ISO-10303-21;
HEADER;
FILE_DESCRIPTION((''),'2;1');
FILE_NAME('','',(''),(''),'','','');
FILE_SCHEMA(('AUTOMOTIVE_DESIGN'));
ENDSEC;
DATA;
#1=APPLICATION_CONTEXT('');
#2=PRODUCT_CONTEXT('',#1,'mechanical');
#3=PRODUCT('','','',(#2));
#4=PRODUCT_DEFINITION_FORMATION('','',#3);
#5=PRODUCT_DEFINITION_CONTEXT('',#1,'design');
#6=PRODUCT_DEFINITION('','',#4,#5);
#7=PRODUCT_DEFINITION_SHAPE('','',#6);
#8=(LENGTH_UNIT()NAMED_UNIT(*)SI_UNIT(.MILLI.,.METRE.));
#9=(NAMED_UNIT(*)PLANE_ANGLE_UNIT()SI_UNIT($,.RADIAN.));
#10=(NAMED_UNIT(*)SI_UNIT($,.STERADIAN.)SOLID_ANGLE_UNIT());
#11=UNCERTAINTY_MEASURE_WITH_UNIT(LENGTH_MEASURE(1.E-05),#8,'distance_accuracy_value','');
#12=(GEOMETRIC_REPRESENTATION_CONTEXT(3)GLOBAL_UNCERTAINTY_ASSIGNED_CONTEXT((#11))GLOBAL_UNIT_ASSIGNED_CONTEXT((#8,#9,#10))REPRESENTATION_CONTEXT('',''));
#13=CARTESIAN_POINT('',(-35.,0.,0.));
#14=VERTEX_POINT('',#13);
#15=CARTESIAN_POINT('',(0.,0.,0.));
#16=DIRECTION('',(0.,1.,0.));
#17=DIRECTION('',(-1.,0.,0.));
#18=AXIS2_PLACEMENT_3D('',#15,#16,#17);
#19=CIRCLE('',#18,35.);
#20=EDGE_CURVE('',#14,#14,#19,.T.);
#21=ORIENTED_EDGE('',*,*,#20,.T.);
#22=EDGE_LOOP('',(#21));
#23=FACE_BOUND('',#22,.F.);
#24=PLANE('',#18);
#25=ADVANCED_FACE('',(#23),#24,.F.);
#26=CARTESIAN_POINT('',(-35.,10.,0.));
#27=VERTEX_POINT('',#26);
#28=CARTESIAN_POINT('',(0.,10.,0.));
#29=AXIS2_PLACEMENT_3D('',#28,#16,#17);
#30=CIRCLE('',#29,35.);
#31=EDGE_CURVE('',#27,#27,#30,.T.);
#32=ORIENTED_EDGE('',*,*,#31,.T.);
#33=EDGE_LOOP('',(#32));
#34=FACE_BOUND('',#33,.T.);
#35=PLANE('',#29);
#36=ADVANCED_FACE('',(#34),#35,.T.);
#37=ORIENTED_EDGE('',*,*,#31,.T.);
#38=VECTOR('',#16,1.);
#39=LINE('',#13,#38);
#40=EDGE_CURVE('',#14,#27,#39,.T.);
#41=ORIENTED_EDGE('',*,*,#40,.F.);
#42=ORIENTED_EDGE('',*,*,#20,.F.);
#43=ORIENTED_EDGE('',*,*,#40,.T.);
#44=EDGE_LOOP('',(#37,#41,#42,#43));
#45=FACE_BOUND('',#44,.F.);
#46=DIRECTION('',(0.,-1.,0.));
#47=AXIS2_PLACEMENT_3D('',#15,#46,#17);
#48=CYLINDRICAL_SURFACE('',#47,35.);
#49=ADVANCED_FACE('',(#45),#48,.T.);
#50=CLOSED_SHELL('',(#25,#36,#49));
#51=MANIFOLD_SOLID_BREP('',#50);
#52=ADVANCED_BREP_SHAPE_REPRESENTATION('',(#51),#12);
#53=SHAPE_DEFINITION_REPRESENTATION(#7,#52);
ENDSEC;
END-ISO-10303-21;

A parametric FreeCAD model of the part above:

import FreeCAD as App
import Part
import Sketcher
from FreeCAD import Vector
Q = App.Units.Quantity

doc = App.newDocument("Part")
params = doc.addObject("Spreadsheet::Sheet", "Params")
for row, (alias, value) in enumerate([
    ("sketch1_diameter", "70 mm"),
    ("pad1_length", "10 mm"),
], start=1):
    params.set(f"A{row}", alias)
    params.set(f"B{row}", "=" + value)
    params.setAlias(f"B{row}", alias)

body = doc.addObject("PartDesign::Body", "Body")

sketch1 = body.newObject("Sketcher::SketchObject", "Sketch")
sketch1.AttachmentSupport = (doc.getObject("XZ_Plane"), [""])
sketch1.MapMode = "FlatFace"
sketch1.addGeometry(Part.Circle(Vector(0, 0, 0), Vector(0, 0, 1), 35), False)
sketch1.addConstraint([
    Sketcher.Constraint("Coincident", 0, 3, -1, 1),
    Sketcher.Constraint("Diameter", 0, Q("70 mm")),
])
sketch1.setExpression("Constraints[1]", "Params.sketch1_diameter")
pad1 = body.newObject("PartDesign::Pad", "Pad")
pad1.Profile = sketch1
pad1.setExpression("Length", "Params.pad1_length")
pad1.Reversed = True

doc.recompute()
